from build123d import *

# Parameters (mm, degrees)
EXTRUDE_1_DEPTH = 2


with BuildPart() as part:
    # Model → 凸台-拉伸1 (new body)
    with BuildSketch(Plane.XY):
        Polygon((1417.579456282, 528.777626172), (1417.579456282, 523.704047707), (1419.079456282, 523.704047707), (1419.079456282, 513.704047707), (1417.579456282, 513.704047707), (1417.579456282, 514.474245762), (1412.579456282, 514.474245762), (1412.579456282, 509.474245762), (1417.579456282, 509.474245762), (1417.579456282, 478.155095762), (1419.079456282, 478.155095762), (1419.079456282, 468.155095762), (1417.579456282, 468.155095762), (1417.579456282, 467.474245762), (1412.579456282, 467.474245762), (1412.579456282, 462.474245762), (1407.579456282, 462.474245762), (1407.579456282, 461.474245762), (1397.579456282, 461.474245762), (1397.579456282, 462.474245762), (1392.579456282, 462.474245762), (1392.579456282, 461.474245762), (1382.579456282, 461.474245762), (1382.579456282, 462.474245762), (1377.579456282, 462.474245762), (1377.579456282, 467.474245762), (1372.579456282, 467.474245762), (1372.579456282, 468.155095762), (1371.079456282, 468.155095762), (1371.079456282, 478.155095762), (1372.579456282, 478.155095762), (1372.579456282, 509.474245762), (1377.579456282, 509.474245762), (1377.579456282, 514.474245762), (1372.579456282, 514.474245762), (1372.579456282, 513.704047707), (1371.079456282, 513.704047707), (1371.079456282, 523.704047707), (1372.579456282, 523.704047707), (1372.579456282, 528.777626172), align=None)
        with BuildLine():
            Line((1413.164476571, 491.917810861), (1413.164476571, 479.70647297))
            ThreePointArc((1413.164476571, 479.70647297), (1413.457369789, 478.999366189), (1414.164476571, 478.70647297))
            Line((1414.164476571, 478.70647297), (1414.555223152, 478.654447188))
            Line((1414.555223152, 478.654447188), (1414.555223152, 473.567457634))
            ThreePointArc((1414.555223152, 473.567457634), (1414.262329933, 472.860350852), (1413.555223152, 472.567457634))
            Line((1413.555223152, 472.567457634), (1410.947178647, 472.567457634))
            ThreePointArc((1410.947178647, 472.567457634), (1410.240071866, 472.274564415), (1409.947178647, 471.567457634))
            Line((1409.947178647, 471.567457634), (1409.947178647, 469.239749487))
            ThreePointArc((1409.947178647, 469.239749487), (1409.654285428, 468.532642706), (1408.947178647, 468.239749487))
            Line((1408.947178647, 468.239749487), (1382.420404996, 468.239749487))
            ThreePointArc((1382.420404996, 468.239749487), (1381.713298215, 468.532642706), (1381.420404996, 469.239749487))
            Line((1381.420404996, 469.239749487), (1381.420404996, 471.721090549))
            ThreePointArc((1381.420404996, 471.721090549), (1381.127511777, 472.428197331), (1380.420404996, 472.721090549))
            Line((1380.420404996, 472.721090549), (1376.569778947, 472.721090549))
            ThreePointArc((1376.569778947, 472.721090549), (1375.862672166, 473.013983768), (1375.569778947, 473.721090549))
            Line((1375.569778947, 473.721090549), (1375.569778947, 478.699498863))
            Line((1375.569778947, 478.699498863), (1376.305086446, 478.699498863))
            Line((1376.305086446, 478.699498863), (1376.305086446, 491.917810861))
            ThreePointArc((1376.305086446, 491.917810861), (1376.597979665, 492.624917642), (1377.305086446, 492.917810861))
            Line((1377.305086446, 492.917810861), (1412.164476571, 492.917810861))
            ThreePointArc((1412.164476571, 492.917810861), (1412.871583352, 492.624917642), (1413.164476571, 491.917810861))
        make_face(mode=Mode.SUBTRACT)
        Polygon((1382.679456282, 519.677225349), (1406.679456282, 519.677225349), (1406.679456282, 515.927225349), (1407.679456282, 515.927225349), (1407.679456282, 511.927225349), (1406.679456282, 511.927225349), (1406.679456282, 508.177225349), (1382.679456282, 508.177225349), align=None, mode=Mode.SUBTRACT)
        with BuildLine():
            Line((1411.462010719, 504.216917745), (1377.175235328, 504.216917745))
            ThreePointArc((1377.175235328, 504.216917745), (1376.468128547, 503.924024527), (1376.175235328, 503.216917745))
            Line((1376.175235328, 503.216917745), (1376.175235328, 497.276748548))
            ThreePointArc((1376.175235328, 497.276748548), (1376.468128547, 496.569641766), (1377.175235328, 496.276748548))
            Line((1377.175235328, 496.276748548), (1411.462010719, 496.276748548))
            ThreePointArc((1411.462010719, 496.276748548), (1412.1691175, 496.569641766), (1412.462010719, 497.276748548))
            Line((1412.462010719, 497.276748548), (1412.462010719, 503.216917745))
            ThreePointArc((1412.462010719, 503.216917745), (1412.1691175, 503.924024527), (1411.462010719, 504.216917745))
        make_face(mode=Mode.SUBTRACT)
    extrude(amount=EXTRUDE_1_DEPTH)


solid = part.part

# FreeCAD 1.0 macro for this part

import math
import FreeCAD as App
import Part
import Sketcher
from FreeCAD import Vector


def add_polygon(sketch, points):
    """Adds a closed chain of lines whose ends are joined by coincident constraints."""
    first, n = sketch.GeometryCount, len(points)
    for a, b in zip(points, points[1:] + points[:1]):
        sketch.addGeometry(Part.LineSegment(App.Vector(*a, 0), App.Vector(*b, 0)), False)
    for i in range(n):
        sketch.addConstraint(Sketcher.Constraint("Coincident", first + i, 2, first + (i + 1) % n, 1))

doc = App.newDocument("Part")
body = doc.addObject("PartDesign::Body", "Body")

# Sketch on XY plane
sketch1 = body.newObject("Sketcher::SketchObject", "Sketch")
sketch1.AttachmentSupport = (doc.getObject("XY_Plane"), [""])
sketch1.MapMode = "FlatFace"
add_polygon(sketch1, [(1417.58, 523.7), (1417.58, 528.78), (1372.58, 528.78), (1372.58, 523.7), (1371.08, 523.7), (1371.08, 513.7), (1372.58, 513.7), (1372.58, 514.47), (1377.58, 514.47), (1377.58, 509.47), (1372.58, 509.47), (1372.58, 478.16), (1371.08, 478.16), (1371.08, 468.16), (1372.58, 468.16), (1372.58, 467.47), (1377.58, 467.47), (1377.58, 462.47), (1382.58, 462.47), (1382.58, 461.47), (1392.58, 461.47), (1392.58, 462.47), (1397.58, 462.47), (1397.58, 461.47), (1407.58, 461.47), (1407.58, 462.47), (1412.58, 462.47), (1412.58, 467.47), (1417.58, 467.47), (1417.58, 468.16), (1419.08, 468.16), (1419.08, 478.16), (1417.58, 478.16), (1417.58, 509.47), (1412.58, 509.47), (1412.58, 514.47), (1417.58, 514.47), (1417.58, 513.7), (1419.08, 513.7), (1419.08, 523.7)])  # lines 0-39
sketch1.addGeometry(Part.LineSegment(Vector(1413.16, 491.92, 0), Vector(1413.16, 479.71, 0)), False)  # 40
sketch1.addGeometry(Part.ArcOfCircle(Part.Circle(Vector(1414.16, 479.71, 0), Vector(0, 0, 1), 1), math.radians(180), math.radians(270)), False)  # 41
sketch1.addGeometry(Part.LineSegment(Vector(1414.16, 478.71, 0), Vector(1414.56, 478.65, 0)), False)  # 42
sketch1.addGeometry(Part.LineSegment(Vector(1414.56, 478.65, 0), Vector(1414.56, 473.57, 0)), False)  # 43
sketch1.addGeometry(Part.ArcOfCircle(Part.Circle(Vector(1413.56, 473.57, 0), Vector(0, 0, 1), 1), math.radians(-90), math.radians(0)), False)  # 44
sketch1.addGeometry(Part.LineSegment(Vector(1413.56, 472.57, 0), Vector(1410.95, 472.57, 0)), False)  # 45
sketch1.addGeometry(Part.ArcOfCircle(Part.Circle(Vector(1410.95, 471.57, 0), Vector(0, 0, 1), 1), math.radians(90), math.radians(180)), False)  # 46
sketch1.addGeometry(Part.LineSegment(Vector(1409.95, 471.57, 0), Vector(1409.95, 469.24, 0)), False)  # 47
sketch1.addGeometry(Part.ArcOfCircle(Part.Circle(Vector(1408.95, 469.24, 0), Vector(0, 0, 1), 1), math.radians(-90), math.radians(0)), False)  # 48
sketch1.addGeometry(Part.LineSegment(Vector(1408.95, 468.24, 0), Vector(1382.42, 468.24, 0)), False)  # 49
sketch1.addGeometry(Part.ArcOfCircle(Part.Circle(Vector(1382.42, 469.24, 0), Vector(0, 0, 1), 1), math.radians(-180), math.radians(-90)), False)  # 50
sketch1.addGeometry(Part.LineSegment(Vector(1381.42, 469.24, 0), Vector(1381.42, 471.72, 0)), False)  # 51
sketch1.addGeometry(Part.ArcOfCircle(Part.Circle(Vector(1380.42, 471.72, 0), Vector(0, 0, 1), 1), math.radians(0), math.radians(90)), False)  # 52
sketch1.addGeometry(Part.LineSegment(Vector(1380.42, 472.72, 0), Vector(1376.57, 472.72, 0)), False)  # 53
sketch1.addGeometry(Part.ArcOfCircle(Part.Circle(Vector(1376.57, 473.72, 0), Vector(0, 0, 1), 1), math.radians(-180), math.radians(-90)), False)  # 54
sketch1.addGeometry(Part.LineSegment(Vector(1375.57, 473.72, 0), Vector(1375.57, 478.7, 0)), False)  # 55
sketch1.addGeometry(Part.LineSegment(Vector(1375.57, 478.7, 0), Vector(1376.31, 478.7, 0)), False)  # 56
sketch1.addGeometry(Part.LineSegment(Vector(1376.31, 478.7, 0), Vector(1376.31, 491.92, 0)), False)  # 57
sketch1.addGeometry(Part.ArcOfCircle(Part.Circle(Vector(1377.31, 491.92, 0), Vector(0, 0, 1), 1), math.radians(90), math.radians(180)), False)  # 58
sketch1.addGeometry(Part.LineSegment(Vector(1377.31, 492.92, 0), Vector(1412.16, 492.92, 0)), False)  # 59
sketch1.addGeometry(Part.ArcOfCircle(Part.Circle(Vector(1412.16, 491.92, 0), Vector(0, 0, 1), 1), math.radians(0), math.radians(90)), False)  # 60
add_polygon(sketch1, [(1382.68, 519.68), (1406.68, 519.68), (1406.68, 515.93), (1407.68, 515.93), (1407.68, 511.93), (1406.68, 511.93), (1406.68, 508.18), (1382.68, 508.18)])  # lines 61-68
sketch1.addGeometry(Part.ArcOfCircle(Part.Circle(Vector(1411.46, 503.22, 0), Vector(0, 0, 1), 1), math.radians(0), math.radians(90)), False)  # 69
sketch1.addGeometry(Part.LineSegment(Vector(1412.46, 503.22, 0), Vector(1412.46, 497.28, 0)), False)  # 70
sketch1.addGeometry(Part.ArcOfCircle(Part.Circle(Vector(1411.46, 497.28, 0), Vector(0, 0, 1), 1), math.radians(-90), math.radians(0)), False)  # 71
sketch1.addGeometry(Part.LineSegment(Vector(1411.46, 496.28, 0), Vector(1377.18, 496.28, 0)), False)  # 72
sketch1.addGeometry(Part.ArcOfCircle(Part.Circle(Vector(1377.18, 497.28, 0), Vector(0, 0, 1), 1), math.radians(180), math.radians(270)), False)  # 73
sketch1.addGeometry(Part.LineSegment(Vector(1376.18, 497.28, 0), Vector(1376.18, 503.22, 0)), False)  # 74
sketch1.addGeometry(Part.ArcOfCircle(Part.Circle(Vector(1377.18, 503.22, 0), Vector(0, 0, 1), 1), math.radians(90), math.radians(180)), False)  # 75
sketch1.addGeometry(Part.LineSegment(Vector(1377.18, 504.22, 0), Vector(1411.46, 504.22, 0)), False)  # 76
sketch1.addConstraint([
    Sketcher.Constraint("Tangent", 40, 2, 41, 1),
    Sketcher.Constraint("Coincident", 41, 2, 42, 1),
    Sketcher.Constraint("Coincident", 42, 2, 43, 1),
    Sketcher.Constraint("Tangent", 43, 2, 44, 2),
    Sketcher.Constraint("Tangent", 44, 1, 45, 1),
    Sketcher.Constraint("Tangent", 45, 2, 46, 1),
    Sketcher.Constraint("Tangent", 46, 2, 47, 1),
    Sketcher.Constraint("Tangent", 47, 2, 48, 2),
    Sketcher.Constraint("Tangent", 48, 1, 49, 1),
    Sketcher.Constraint("Tangent", 49, 2, 50, 2),
    Sketcher.Constraint("Tangent", 50, 1, 51, 1),
    Sketcher.Constraint("Tangent", 51, 2, 52, 1),
    Sketcher.Constraint("Tangent", 52, 2, 53, 1),
    Sketcher.Constraint("Tangent", 53, 2, 54, 2),
    Sketcher.Constraint("Tangent", 54, 1, 55, 1),
    Sketcher.Constraint("Coincident", 55, 2, 56, 1),
    Sketcher.Constraint("Coincident", 56, 2, 57, 1),
    Sketcher.Constraint("Tangent", 57, 2, 58, 2),
    Sketcher.Constraint("Tangent", 58, 1, 59, 1),
    Sketcher.Constraint("Tangent", 59, 2, 60, 2),
    Sketcher.Constraint("Tangent", 60, 1, 40, 1),
    Sketcher.Constraint("Tangent", 69, 1, 70, 1),
    Sketcher.Constraint("Tangent", 70, 2, 71, 2),
    Sketcher.Constraint("Tangent", 71, 1, 72, 1),
    Sketcher.Constraint("Tangent", 72, 2, 73, 2),
    Sketcher.Constraint("Tangent", 73, 1, 74, 1),
    Sketcher.Constraint("Tangent", 74, 2, 75, 2),
    Sketcher.Constraint("Tangent", 75, 1, 76, 1),
    Sketcher.Constraint("Tangent", 76, 2, 69, 2),
    Sketcher.Constraint("Vertical", 0),
    Sketcher.Constraint("Horizontal", 1),
    Sketcher.Constraint("Vertical", 2),
    Sketcher.Constraint("Horizontal", 3),
    Sketcher.Constraint("Vertical", 4),
    Sketcher.Constraint("Horizontal", 5),
    Sketcher.Constraint("Vertical", 6),
    Sketcher.Constraint("Horizontal", 7),
    Sketcher.Constraint("Vertical", 8),
    Sketcher.Constraint("Horizontal", 9),
    Sketcher.Constraint("Vertical", 10),
    Sketcher.Constraint("Horizontal", 11),
    Sketcher.Constraint("Vertical", 12),
    Sketcher.Constraint("Horizontal", 13),
    Sketcher.Constraint("Vertical", 14),
    Sketcher.Constraint("Horizontal", 15),
    Sketcher.Constraint("Vertical", 16),
    Sketcher.Constraint("Horizontal", 17),
    Sketcher.Constraint("Vertical", 18),
    Sketcher.Constraint("Horizontal", 19),
    Sketcher.Constraint("Vertical", 20),
    Sketcher.Constraint("Horizontal", 21),
    Sketcher.Constraint("Vertical", 22),
    Sketcher.Constraint("Horizontal", 23),
    Sketcher.Constraint("Vertical", 24),
    Sketcher.Constraint("Horizontal", 25),
    Sketcher.Constraint("Vertical", 26),
    Sketcher.Constraint("Horizontal", 27),
    Sketcher.Constraint("Vertical", 28),
    Sketcher.Constraint("Horizontal", 29),
    Sketcher.Constraint("Vertical", 30),
    Sketcher.Constraint("Horizontal", 31),
    Sketcher.Constraint("Vertical", 32),
    Sketcher.Constraint("Horizontal", 33),
    Sketcher.Constraint("Vertical", 34),
    Sketcher.Constraint("Horizontal", 35),
    Sketcher.Constraint("Vertical", 36),
    Sketcher.Constraint("Horizontal", 37),
    Sketcher.Constraint("Vertical", 38),
    Sketcher.Constraint("Horizontal", 39),
    Sketcher.Constraint("Vertical", 40),
    Sketcher.Constraint("Vertical", 43),
    Sketcher.Constraint("Horizontal", 45),
    Sketcher.Constraint("Vertical", 47),
    Sketcher.Constraint("Horizontal", 49),
    Sketcher.Constraint("Vertical", 51),
    Sketcher.Constraint("Horizontal", 53),
    Sketcher.Constraint("Vertical", 55),
    Sketcher.Constraint("Horizontal", 56),
    Sketcher.Constraint("Vertical", 57),
    Sketcher.Constraint("Horizontal", 59),
    Sketcher.Constraint("Horizontal", 61),
    Sketcher.Constraint("Vertical", 62),
    Sketcher.Constraint("Horizontal", 63),
    Sketcher.Constraint("Vertical", 64),
    Sketcher.Constraint("Horizontal", 65),
    Sketcher.Constraint("Vertical", 66),
    Sketcher.Constraint("Horizontal", 67),
    Sketcher.Constraint("Vertical", 68),
    Sketcher.Constraint("Vertical", 70),
    Sketcher.Constraint("Horizontal", 72),
    Sketcher.Constraint("Vertical", 74),
    Sketcher.Constraint("Horizontal", 76),
    Sketcher.Constraint("Equal", 41, 44),
    Sketcher.Constraint("Equal", 44, 46),
    Sketcher.Constraint("Equal", 46, 48),
    Sketcher.Constraint("Equal", 48, 50),
    Sketcher.Constraint("Equal", 50, 52),
    Sketcher.Constraint("Equal", 52, 54),
    Sketcher.Constraint("Equal", 54, 58),
    Sketcher.Constraint("Equal", 58, 60),
    Sketcher.Constraint("Equal", 60, 69),
    Sketcher.Constraint("Equal", 69, 71),
    Sketcher.Constraint("Equal", 71, 73),
    Sketcher.Constraint("Equal", 73, 75),
    Sketcher.Constraint("Horizontal", 17, 2, 20, 2),
    Sketcher.Constraint("Horizontal", 19, 2, 22, 2),
    Sketcher.Constraint("Horizontal", 21, 2, 24, 2),
    Sketcher.Constraint("Horizontal", 15, 2, 26, 2),
    Sketcher.Constraint("Horizontal", 13, 2, 28, 2),
    Sketcher.Constraint("Horizontal", 11, 2, 30, 2),
    Sketcher.Constraint("Horizontal", 9, 2, 32, 2),
    Sketcher.Constraint("Horizontal", 7, 2, 34, 2),
    Sketcher.Constraint("Horizontal", 5, 2, 36, 2),
    Sketcher.Constraint("Horizontal", 3, 2, 38, 2),
    Sketcher.Constraint("Vertical", 2, 2, 5, 2),
    Sketcher.Constraint("Vertical", 6, 2, 9, 2),
    Sketcher.Constraint("Vertical", 4, 2, 11, 2),
    Sketcher.Constraint("Vertical", 10, 2, 13, 2),
    Sketcher.Constraint("Vertical", 8, 2, 15, 2),
    Sketcher.Constraint("Vertical", 0, 2, 27, 2),
    Sketcher.Constraint("Vertical", 28, 2, 31, 2),
    Sketcher.Constraint("Vertical", 26, 2, 33, 2),
    Sketcher.Constraint("Vertical", 32, 2, 35, 2),
    Sketcher.Constraint("Vertical", 30, 2, 37, 2),
    Sketcher.Constraint("Vertical", 62, 2, 65, 2),
    Sketcher.Constraint("Equal", 15, 17),
    Sketcher.Constraint("Equal", 17, 21),
    Sketcher.Constraint("Equal", 19, 23),
    Sketcher.Constraint("Equal", 21, 25),
    Sketcher.Constraint("Equal", 25, 27),
    Sketcher.Constraint("Equal", 13, 29),
    Sketcher.Constraint("Equal", 23, 4),
    Sketcher.Constraint("Equal", 35, 8),
    Sketcher.Constraint("Equal", 4, 12),
    Sketcher.Constraint("Equal", 8, 16),
    Sketcher.Constraint("Equal", 65, 18),
    Sketcher.Constraint("Equal", 62, 66),
    Sketcher.Constraint("Radius", 41, 1.0),
    Sketcher.Constraint("DistanceX", 1, 2, 1, 1, 45.0),
    Sketcher.Constraint("DistanceX", 7, 1, 7, 2, 5.0),
    Sketcher.Constraint("DistanceX", 61, 1, 61, 2, 24.0),
    Sketcher.Constraint("DistanceX", 63, 1, 63, 2, 1.0),
    Sketcher.Constraint("DistanceY", 64, 2, 64, 1, 4.0),
    Sketcher.Constraint("DistanceX", 3, 2, 3, 1, 1.5),
    Sketcher.Constraint("DistanceY", 68, 1, 68, 2, 11.5),
    Sketcher.Constraint("DistanceY", 6, 1, 6, 2, 0.770198),
    Sketcher.Constraint("DistanceX", 59, 1, 59, 2, 34.85939),
    Sketcher.Constraint("DistanceY", 0, 1, 0, 2, 5.073578),
    Sketcher.Constraint("DistanceY", 10, 2, 10, 1, 31.31915),
    Sketcher.Constraint("DistanceY", 14, 2, 14, 1, 0.68085),
    Sketcher.Constraint("DistanceY", 43, 2, 43, 1, 5.08699),
    Sketcher.Constraint("DistanceY", 47, 2, 47, 1, 2.327708),
    Sketcher.Constraint("DistanceY", 51, 1, 51, 2, 2.481341),
    Sketcher.Constraint("DistanceY", 55, 1, 55, 2, 4.978408),
    Sketcher.Constraint("DistanceY", 57, 1, 57, 2, 13.218312),
    Sketcher.Constraint("DistanceY", 70, 2, 70, 1, 5.940169),
    Sketcher.Constraint("DistanceY", -1, 1, 55, 2, 478.699499),
    Sketcher.Constraint("DistanceX", 45, 2, 45, 1, 2.608045),
    Sketcher.Constraint("DistanceX", 49, 2, 49, 1, 26.526774),
    Sketcher.Constraint("DistanceX", 53, 2, 53, 1, 3.850626),
    Sketcher.Constraint("DistanceX", 56, 1, 56, 2, 0.735307),
    Sketcher.Constraint("DistanceX", 72, 2, 72, 1, 34.286775),
    Sketcher.Constraint("DistanceY", 40, 2, 40, 1, 12.211338),
    Sketcher.Constraint("DistanceX", -1, 1, 46, 3, 1410.947179),
    Sketcher.Constraint("DistanceX", -1, 1, 69, 3, 1411.462011),
    Sketcher.Constraint("DistanceY", -1, 1, 71, 3, 497.276749),
    Sketcher.Constraint("Distance", 42, 0.394195),
    Sketcher.Constraint("DistanceX", -1, 1, 0, 2, 1417.579456),
    Sketcher.Constraint("DistanceY", -1, 1, 0, 2, 528.777626),
    Sketcher.Constraint("DistanceX", -1, 1, 61, 2, 1406.679456),
    Sketcher.Constraint("DistanceY", -1, 1, 61, 2, 519.677225),
])
pad1 = body.newObject("PartDesign::Pad", "Pad")
pad1.Profile = sketch1
pad1.Length = 2

doc.recompute()
